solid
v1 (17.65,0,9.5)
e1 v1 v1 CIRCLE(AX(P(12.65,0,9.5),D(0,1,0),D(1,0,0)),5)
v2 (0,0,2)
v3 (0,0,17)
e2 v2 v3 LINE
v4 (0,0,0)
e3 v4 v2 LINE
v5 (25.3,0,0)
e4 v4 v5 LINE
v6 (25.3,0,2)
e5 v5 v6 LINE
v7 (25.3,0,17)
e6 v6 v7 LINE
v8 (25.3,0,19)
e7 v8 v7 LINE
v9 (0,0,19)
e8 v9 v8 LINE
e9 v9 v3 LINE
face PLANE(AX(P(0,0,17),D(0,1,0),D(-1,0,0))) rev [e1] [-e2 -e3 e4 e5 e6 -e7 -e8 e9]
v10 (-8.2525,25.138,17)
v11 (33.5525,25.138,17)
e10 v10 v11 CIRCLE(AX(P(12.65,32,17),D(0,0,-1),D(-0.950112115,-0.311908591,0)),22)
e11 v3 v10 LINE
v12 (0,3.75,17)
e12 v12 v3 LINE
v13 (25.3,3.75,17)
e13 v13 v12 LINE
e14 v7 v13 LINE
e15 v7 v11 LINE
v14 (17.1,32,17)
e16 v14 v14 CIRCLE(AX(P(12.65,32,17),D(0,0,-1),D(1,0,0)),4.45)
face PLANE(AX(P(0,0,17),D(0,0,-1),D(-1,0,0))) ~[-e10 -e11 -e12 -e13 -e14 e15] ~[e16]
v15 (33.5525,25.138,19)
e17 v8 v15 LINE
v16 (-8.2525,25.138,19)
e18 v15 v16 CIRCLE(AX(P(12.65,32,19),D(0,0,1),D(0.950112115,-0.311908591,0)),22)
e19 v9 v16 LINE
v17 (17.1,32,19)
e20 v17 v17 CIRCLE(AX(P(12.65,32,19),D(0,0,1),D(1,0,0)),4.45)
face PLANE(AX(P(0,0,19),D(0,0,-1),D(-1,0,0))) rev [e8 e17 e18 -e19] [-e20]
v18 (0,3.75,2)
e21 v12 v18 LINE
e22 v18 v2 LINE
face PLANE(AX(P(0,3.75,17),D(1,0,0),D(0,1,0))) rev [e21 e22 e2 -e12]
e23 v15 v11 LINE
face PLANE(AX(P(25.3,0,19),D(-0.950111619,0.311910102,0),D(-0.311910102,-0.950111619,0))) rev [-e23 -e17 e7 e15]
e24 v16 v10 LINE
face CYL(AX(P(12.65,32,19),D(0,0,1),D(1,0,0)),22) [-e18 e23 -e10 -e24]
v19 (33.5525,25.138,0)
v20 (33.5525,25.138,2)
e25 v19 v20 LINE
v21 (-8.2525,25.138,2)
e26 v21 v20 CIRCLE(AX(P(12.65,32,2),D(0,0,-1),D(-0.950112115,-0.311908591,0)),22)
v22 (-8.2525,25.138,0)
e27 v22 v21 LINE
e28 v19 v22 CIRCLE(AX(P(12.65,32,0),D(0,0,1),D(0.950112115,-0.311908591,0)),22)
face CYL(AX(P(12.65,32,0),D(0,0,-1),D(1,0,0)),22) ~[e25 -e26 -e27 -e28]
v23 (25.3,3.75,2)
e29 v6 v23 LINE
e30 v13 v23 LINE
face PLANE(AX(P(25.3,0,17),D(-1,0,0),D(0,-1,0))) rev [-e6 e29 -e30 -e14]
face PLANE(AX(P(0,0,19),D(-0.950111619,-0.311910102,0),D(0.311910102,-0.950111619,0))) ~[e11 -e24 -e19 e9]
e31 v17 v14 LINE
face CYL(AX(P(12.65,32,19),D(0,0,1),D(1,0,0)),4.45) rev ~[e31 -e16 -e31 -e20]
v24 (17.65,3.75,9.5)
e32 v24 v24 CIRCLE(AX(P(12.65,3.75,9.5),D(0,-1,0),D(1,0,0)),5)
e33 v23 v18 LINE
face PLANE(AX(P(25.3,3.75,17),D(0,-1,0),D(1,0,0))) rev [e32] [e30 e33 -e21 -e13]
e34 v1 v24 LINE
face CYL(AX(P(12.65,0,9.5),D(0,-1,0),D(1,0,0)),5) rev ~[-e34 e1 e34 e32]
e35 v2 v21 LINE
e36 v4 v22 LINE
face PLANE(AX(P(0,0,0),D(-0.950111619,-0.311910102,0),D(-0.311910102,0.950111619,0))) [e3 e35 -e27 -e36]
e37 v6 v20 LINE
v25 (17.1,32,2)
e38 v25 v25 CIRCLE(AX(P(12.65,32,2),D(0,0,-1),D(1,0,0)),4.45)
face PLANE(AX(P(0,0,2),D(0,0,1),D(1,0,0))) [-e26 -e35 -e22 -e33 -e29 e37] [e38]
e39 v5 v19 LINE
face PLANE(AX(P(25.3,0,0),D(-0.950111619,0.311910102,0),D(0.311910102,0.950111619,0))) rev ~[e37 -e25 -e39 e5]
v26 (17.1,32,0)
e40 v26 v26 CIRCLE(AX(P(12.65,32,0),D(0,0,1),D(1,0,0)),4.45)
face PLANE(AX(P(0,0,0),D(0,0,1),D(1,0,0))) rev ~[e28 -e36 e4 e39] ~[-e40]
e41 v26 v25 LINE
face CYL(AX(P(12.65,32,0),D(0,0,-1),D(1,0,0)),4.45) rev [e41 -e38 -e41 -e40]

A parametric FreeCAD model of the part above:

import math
import FreeCAD as App
import Part
import Sketcher

V = App.Vector


def add_polygon(sketch, points):
    """Adds a closed chain of lines whose ends are joined by coincident constraints."""
    first, n = sketch.GeometryCount, len(points)
    for a, b in zip(points, points[1:] + points[:1]):
        sketch.addGeometry(Part.LineSegment(App.Vector(*a, 0), App.Vector(*b, 0)), False)
    for i in range(n):
        sketch.addConstraint(Sketcher.Constraint("Coincident", first + i, 2, first + (i + 1) % n, 1))

doc = App.newDocument("Part")
body = doc.addObject("PartDesign::Body", "Body")

# Sketch on XY plane
sketch1 = body.newObject("Sketcher::SketchObject", "Sketch")
sketch1.AttachmentSupport = (doc.getObject("XY_Plane"), [""])
sketch1.MapMode = "FlatFace"
sketch1.addGeometry(Part.LineSegment(V(-8.3, 25.1, 0), V(0, 0, 0)), False)
sketch1.addGeometry(Part.LineSegment(V(0, 0, 0), V(25.3, 0, 0)), False)
sketch1.addGeometry(Part.LineSegment(V(25.3, 0, 0), V(33.6, 25.1, 0)), False)
sketch1.addGeometry(Part.ArcOfCircle(Part.Circle(V(12.7, 32, 0), V(0, 0, 1), 22), math.radians(-18), math.radians(198)), False)
sketch1.addGeometry(Part.Circle(V(12.7, 32, 0), V(0, 0, 1), 4.5), False)
sketch1.addConstraint(Sketcher.Constraint("Coincident", 0, 2, 1, 1))
sketch1.addConstraint(Sketcher.Constraint("Coincident", 1, 2, 2, 1))
sketch1.addConstraint(Sketcher.Constraint("Tangent", 2, 2, 3, 1))
sketch1.addConstraint(Sketcher.Constraint("Tangent", 3, 2, 0, 1))
sketch1.addConstraint(Sketcher.Constraint("Horizontal", 1))
sketch1.addConstraint(Sketcher.Constraint("Coincident", 0, 2, -1, 1))
sketch1.addConstraint(Sketcher.Constraint("Coincident", 4, 3, 3, 3))
sketch1.addConstraint(Sketcher.Constraint("Horizontal", 2, 2, 3, 2))
sketch1.addConstraint(Sketcher.Constraint("Radius", 3, 22.0))
sketch1.addConstraint(Sketcher.Constraint("Diameter", 4, 8.9))
sketch1.addConstraint(Sketcher.Constraint("DistanceX", 1, 1, 1, 2, 25.3))
sketch1.addConstraint(Sketcher.Constraint("DistanceY", -1, 1, 3, 3, 32.0))
pad1 = body.newObject("PartDesign::Pad", "Pad")
pad1.Profile = sketch1
pad1.Length = 2

# Sketch on XY plane
sketch2 = body.newObject("Sketcher::SketchObject", "Sketch001")
sketch2.AttachmentSupport = (doc.getObject("XY_Plane"), [""])
sketch2.MapMode = "FlatFace"
sketch2.AttachmentOffset = App.Placement(V(0, 0, 2), App.Rotation())
add_polygon(sketch2, [(0, 3.8), (0, 0), (25.3, 0), (25.3, 3.8)])  # lines 0-3
sketch2.addConstraint(Sketcher.Constraint("Vertical", 0))
sketch2.addConstraint(Sketcher.Constraint("Horizontal", 1))
sketch2.addConstraint(Sketcher.Constraint("Vertical", 2))
sketch2.addConstraint(Sketcher.Constraint("Horizontal", 3))
sketch2.addConstraint(Sketcher.Constraint("Coincident", 0, 2, -1, 1))
sketch2.addConstraint(Sketcher.Constraint("DistanceX", 1, 1, 1, 2, 25.3))
sketch2.addConstraint(Sketcher.Constraint("DistanceY", 0, 2, 0, 1, 3.75))
pad2 = body.newObject("PartDesign::Pad", "Pad001")
pad2.Profile = sketch2
pad2.Length = 7.5
doc.recompute()

datumplane = body.newObject("PartDesign::Plane", "DatumPlane")
datumplane.AttachmentSupport = (doc.getObject("XY_Plane"), [""])
datumplane.MapMode = "FlatFace"
datumplane.AttachmentOffset = App.Placement(V(0, 0, 9.5), App.Rotation())
mirrored = body.newObject("PartDesign::Mirrored", "Mirrored")
mirrored.Originals = [pad1, pad2]
mirrored.MirrorPlane = (datumplane, [""])
body.Tip = mirrored

# Sketch on XZ plane
sketch3 = body.newObject("Sketcher::SketchObject", "Sketch002")
sketch3.AttachmentSupport = (doc.getObject("XZ_Plane"), [""])
sketch3.MapMode = "FlatFace"
sketch3.addGeometry(Part.Circle(V(13, 10, 0), V(0, 0, 1), 5), False)
sketch3.addConstraint(Sketcher.Constraint("Diameter", 0, 10.0))
sketch3.addConstraint(Sketcher.Constraint("DistanceY", -1, 1, 0, 3, 9.5))
sketch3.addConstraint(Sketcher.Constraint("DistanceX", -1, 1, 0, 3, 12.65))
pocket1 = body.newObject("PartDesign::Pocket", "Pocket")
pocket1.Profile = sketch3
pocket1.Length = 7.5

doc.recompute()
